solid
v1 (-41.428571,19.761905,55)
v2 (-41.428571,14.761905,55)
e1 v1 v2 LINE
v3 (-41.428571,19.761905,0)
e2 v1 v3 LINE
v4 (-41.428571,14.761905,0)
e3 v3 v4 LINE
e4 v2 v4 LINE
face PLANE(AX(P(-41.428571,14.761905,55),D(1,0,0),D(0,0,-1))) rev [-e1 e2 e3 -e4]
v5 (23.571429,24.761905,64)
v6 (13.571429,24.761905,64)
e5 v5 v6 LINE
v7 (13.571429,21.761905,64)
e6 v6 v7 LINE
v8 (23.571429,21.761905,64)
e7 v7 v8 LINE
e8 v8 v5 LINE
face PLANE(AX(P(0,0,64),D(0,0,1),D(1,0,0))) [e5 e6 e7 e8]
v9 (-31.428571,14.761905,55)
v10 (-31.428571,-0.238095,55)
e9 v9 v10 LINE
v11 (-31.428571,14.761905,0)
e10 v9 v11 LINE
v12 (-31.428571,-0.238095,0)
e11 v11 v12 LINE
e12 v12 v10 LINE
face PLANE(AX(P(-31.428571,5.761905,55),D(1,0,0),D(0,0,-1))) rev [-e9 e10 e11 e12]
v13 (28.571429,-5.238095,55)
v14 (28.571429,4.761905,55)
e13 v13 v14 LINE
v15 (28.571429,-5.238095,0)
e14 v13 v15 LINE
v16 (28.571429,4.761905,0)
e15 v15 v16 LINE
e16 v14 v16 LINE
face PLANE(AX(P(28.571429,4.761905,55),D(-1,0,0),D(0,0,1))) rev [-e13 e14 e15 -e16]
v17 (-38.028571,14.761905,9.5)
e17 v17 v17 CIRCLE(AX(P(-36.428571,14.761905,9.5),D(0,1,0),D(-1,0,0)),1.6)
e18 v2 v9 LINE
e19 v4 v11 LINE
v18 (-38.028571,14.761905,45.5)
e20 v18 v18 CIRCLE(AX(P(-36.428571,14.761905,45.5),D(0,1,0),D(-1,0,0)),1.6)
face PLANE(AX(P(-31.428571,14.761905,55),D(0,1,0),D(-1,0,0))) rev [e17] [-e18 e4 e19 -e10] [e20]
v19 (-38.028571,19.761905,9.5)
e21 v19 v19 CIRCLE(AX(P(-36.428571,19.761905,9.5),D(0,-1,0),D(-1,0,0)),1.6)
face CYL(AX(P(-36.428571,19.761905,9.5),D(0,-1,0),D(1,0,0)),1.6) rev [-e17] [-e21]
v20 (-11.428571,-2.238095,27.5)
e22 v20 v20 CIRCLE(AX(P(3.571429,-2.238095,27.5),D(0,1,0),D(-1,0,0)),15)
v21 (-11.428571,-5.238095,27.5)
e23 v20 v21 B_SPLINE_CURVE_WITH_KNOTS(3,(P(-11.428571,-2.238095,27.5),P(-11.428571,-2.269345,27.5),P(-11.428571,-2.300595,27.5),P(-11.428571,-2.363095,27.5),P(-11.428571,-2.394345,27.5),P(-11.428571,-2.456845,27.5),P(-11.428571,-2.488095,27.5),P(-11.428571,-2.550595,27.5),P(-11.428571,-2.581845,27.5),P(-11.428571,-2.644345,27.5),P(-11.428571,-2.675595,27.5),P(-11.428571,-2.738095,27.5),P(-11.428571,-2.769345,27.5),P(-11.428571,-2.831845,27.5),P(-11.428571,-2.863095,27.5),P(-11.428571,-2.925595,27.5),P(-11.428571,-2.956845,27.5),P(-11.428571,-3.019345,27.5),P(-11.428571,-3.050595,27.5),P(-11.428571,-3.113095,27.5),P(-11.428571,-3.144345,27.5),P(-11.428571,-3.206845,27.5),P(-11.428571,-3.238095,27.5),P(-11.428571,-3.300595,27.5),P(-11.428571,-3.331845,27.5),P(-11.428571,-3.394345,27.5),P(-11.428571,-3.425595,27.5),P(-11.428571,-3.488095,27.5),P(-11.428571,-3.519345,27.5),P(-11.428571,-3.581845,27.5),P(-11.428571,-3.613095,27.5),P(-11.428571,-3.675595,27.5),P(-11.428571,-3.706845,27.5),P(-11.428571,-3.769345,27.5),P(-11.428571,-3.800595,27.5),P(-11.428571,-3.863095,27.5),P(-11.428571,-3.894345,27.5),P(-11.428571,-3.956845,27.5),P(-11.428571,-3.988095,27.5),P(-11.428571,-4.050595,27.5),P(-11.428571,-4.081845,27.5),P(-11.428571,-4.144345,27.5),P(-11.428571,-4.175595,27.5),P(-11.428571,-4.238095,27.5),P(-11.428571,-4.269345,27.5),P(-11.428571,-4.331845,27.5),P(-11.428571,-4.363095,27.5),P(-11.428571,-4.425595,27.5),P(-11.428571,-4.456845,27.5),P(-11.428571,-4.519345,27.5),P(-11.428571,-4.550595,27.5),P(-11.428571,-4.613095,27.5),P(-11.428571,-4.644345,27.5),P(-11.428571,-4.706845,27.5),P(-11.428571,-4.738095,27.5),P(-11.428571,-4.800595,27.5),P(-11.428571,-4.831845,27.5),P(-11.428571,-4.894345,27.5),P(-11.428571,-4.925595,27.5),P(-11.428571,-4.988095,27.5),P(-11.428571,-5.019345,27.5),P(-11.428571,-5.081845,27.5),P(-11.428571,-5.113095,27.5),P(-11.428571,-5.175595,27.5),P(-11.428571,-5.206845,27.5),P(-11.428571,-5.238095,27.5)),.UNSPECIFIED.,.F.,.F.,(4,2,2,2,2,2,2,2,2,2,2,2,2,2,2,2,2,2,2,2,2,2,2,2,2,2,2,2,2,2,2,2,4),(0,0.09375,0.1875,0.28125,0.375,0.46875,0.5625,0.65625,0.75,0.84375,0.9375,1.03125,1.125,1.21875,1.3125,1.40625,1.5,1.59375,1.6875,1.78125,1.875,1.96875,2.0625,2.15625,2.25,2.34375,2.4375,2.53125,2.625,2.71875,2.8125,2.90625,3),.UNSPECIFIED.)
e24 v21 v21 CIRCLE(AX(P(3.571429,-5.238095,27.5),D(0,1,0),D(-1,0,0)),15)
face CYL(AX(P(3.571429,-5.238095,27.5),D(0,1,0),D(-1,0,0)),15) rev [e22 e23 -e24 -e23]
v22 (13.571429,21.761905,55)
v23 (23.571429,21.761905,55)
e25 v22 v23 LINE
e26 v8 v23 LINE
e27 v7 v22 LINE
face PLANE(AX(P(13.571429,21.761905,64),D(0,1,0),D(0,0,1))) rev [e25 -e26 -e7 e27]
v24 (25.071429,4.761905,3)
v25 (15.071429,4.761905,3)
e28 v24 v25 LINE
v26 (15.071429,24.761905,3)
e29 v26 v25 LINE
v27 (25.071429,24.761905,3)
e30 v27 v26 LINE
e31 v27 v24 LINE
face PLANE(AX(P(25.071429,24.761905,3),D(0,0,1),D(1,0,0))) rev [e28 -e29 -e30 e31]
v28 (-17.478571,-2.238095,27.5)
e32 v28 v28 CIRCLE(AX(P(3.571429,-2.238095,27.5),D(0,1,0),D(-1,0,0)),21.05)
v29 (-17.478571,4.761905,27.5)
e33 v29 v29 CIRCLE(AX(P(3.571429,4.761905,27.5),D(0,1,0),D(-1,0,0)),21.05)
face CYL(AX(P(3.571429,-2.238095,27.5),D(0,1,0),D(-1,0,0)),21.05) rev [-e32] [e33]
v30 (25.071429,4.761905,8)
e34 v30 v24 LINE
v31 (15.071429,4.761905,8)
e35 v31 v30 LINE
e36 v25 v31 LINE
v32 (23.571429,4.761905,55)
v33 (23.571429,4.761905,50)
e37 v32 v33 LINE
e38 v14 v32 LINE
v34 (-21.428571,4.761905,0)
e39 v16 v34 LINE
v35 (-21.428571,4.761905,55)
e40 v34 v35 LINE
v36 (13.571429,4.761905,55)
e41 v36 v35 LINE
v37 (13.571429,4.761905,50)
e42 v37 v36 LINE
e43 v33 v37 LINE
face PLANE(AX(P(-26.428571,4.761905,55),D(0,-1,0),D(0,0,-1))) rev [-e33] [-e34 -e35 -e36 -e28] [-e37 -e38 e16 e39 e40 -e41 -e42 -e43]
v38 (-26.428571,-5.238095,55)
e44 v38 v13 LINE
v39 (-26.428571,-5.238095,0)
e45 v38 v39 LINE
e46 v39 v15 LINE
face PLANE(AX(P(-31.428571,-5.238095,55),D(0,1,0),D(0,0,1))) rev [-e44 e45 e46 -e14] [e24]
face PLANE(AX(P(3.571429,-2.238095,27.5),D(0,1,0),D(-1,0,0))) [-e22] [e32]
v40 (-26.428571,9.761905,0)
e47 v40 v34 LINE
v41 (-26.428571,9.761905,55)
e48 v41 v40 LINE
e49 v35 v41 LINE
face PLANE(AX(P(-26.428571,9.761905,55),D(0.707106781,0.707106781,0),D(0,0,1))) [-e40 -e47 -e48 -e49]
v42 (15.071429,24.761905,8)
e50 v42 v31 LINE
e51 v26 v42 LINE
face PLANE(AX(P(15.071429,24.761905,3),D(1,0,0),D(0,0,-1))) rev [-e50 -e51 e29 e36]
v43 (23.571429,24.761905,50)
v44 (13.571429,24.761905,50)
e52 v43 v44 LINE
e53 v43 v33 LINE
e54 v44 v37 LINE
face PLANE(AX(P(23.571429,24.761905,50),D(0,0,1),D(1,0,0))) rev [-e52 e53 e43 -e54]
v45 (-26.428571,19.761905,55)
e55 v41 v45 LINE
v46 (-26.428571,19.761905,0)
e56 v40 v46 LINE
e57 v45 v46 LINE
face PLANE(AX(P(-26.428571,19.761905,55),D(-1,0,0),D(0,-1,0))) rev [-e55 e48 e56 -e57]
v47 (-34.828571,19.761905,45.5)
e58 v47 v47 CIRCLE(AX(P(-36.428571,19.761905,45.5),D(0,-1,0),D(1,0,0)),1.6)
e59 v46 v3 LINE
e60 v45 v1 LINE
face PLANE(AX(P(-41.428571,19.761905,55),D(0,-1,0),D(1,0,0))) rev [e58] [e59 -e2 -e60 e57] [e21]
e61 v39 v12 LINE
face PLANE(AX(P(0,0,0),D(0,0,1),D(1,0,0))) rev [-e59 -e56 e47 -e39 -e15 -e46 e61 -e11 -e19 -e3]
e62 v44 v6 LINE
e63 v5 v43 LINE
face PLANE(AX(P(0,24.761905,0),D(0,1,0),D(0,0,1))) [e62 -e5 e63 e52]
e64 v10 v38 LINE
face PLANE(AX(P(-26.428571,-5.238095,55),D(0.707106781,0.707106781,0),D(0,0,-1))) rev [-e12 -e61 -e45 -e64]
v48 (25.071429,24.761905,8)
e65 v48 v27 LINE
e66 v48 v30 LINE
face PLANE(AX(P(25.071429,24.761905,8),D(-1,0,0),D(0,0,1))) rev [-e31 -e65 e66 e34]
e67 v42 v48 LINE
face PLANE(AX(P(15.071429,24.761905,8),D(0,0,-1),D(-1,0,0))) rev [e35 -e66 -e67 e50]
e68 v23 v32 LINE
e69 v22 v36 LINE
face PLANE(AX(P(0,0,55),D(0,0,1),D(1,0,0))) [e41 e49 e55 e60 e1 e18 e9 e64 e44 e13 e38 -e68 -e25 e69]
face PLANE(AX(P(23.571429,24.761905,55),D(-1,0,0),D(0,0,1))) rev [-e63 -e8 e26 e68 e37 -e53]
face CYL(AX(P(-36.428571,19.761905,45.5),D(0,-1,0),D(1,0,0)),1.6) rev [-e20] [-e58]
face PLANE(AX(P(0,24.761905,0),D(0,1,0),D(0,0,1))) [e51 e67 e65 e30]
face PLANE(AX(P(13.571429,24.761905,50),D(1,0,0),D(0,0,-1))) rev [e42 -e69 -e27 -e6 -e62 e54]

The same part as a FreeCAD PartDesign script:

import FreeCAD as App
import Part
import Sketcher
from FreeCAD import Vector
Q = App.Units.Quantity


def edges_at(feature, points):
    """Names of the edges that pass closest to the given points."""
    edges = feature.Shape.Edges
    near = lambda p: min(range(len(edges)), key=lambda i: edges[i].distToShape(Part.Vertex(*p))[0])
    return sorted({f"Edge{near(p) + 1}" for p in points})

doc = App.newDocument("Part")
body = doc.addObject("PartDesign::Body", "Body")

# Sketch on XY plane
sketch1 = body.newObject("Sketcher::SketchObject", "Sketch")
sketch1.AttachmentSupport = (doc.getObject("XY_Plane"), [""])
sketch1.MapMode = "FlatFace"
sketch1.addGeometry(Part.LineSegment(Vector(-31.428571, 14.761905, 0), Vector(-31.428571, -5.238095, 0)), False)
sketch1.addGeometry(Part.LineSegment(Vector(-31.428571, -5.238095, 0), Vector(28.571429, -5.238095, 0)), False)
sketch1.addGeometry(Part.LineSegment(Vector(28.571429, -5.238095, 0), Vector(28.571429, 4.761905, 0)), False)
sketch1.addGeometry(Part.LineSegment(Vector(28.571429, 4.761905, 0), Vector(-26.428571, 4.761905, 0)), False)
sketch1.addGeometry(Part.LineSegment(Vector(-26.428571, 4.761905, 0), Vector(-26.428571, 19.761905, 0)), False)
sketch1.addGeometry(Part.LineSegment(Vector(-26.428571, 19.761905, 0), Vector(-41.428571, 19.761905, 0)), False)
sketch1.addGeometry(Part.LineSegment(Vector(-41.428571, 19.761905, 0), Vector(-41.428571, 14.761905, 0)), False)
sketch1.addGeometry(Part.LineSegment(Vector(-41.428571, 14.761905, 0), Vector(-31.428571, 14.761905, 0)), False)
sketch1.addConstraint(Sketcher.Constraint("Coincident", 0, 2, 1, 1))
sketch1.addConstraint(Sketcher.Constraint("Coincident", 1, 2, 2, 1))
sketch1.addConstraint(Sketcher.Constraint("Coincident", 2, 2, 3, 1))
sketch1.addConstraint(Sketcher.Constraint("Coincident", 3, 2, 4, 1))
sketch1.addConstraint(Sketcher.Constraint("Coincident", 4, 2, 5, 1))
sketch1.addConstraint(Sketcher.Constraint("Coincident", 5, 2, 6, 1))
sketch1.addConstraint(Sketcher.Constraint("Coincident", 6, 2, 7, 1))
sketch1.addConstraint(Sketcher.Constraint("Coincident", 7, 2, 0, 1))
sketch1.addConstraint(Sketcher.Constraint("Vertical", 0))
sketch1.addConstraint(Sketcher.Constraint("Horizontal", 1))
sketch1.addConstraint(Sketcher.Constraint("Vertical", 2))
sketch1.addConstraint(Sketcher.Constraint("Horizontal", 3))
sketch1.addConstraint(Sketcher.Constraint("Vertical", 4))
sketch1.addConstraint(Sketcher.Constraint("Horizontal", 5))
sketch1.addConstraint(Sketcher.Constraint("Vertical", 6))
sketch1.addConstraint(Sketcher.Constraint("Horizontal", 7))
sketch1.addConstraint(Sketcher.Constraint("Equal", 7, 2))
sketch1.addConstraint(Sketcher.Constraint("Equal", 5, 4))
sketch1.addConstraint(Sketcher.Constraint("DistanceX", 1, 1, 1, 2, Q("60 mm")))
sketch1.addConstraint(Sketcher.Constraint("DistanceX", 3, 2, 3, 1, Q("55 mm")))
sketch1.addConstraint(Sketcher.Constraint("DistanceX", 5, 2, 5, 1, Q("15 mm")))
sketch1.addConstraint(Sketcher.Constraint("DistanceY", 0, 2, 0, 1, Q("20 mm")))
sketch1.addConstraint(Sketcher.Constraint("DistanceX", 0, 2, -1, 1, Q("31.428571 mm")))
sketch1.addConstraint(Sketcher.Constraint("DistanceY", 0, 2, -1, 1, Q("5.238095 mm")))
pad1 = body.newObject("PartDesign::Pad", "Pad")
pad1.Profile = sketch1
pad1.Length = 55

# Sketch on XZ plane
sketch2 = body.newObject("Sketcher::SketchObject", "Sketch001")
sketch2.AttachmentSupport = (doc.getObject("XZ_Plane"), [""])
sketch2.MapMode = "FlatFace"
sketch2.AttachmentOffset = App.Placement(Vector(0, 0, -4.761905), App.Rotation())
sketch2.addGeometry(Part.Circle(Vector(3.571429, 27.5, 0), Vector(0, 0, 1), 21.05), False)
sketch2.addConstraint(Sketcher.Constraint("Diameter", 0, Q("42.1 mm")))
sketch2.addConstraint(Sketcher.Constraint("DistanceY", -1, 1, 0, 3, Q("27.5 mm")))
sketch2.addConstraint(Sketcher.Constraint("DistanceX", -1, 1, 0, 3, Q("3.571429 mm")))
pocket1 = body.newObject("PartDesign::Pocket", "Pocket")
pocket1.Profile = sketch2
pocket1.Length = 7
pocket1.Reversed = True

# Sketch on XZ plane
sketch3 = body.newObject("Sketcher::SketchObject", "Sketch002")
sketch3.AttachmentSupport = (doc.getObject("XZ_Plane"), [""])
sketch3.MapMode = "FlatFace"
sketch3.AttachmentOffset = App.Placement(Vector(0, 0, 2.238095), App.Rotation())
sketch3.addGeometry(Part.Circle(Vector(3.571429, 27.5, 0), Vector(0, 0, 1), 15), False)
sketch3.addConstraint(Sketcher.Constraint("Diameter", 0, Q("30 mm")))
sketch3.addConstraint(Sketcher.Constraint("DistanceY", -1, 1, 0, 3, Q("27.5 mm")))
sketch3.addConstraint(Sketcher.Constraint("DistanceX", -1, 1, 0, 3, Q("3.571429 mm")))
pocket2 = body.newObject("PartDesign::Pocket", "Pocket001")
pocket2.Profile = sketch3
pocket2.Type = "ThroughAll"
pocket2.Midplane = True

# Sketch on XZ plane
sketch4 = body.newObject("Sketcher::SketchObject", "Sketch003")
sketch4.AttachmentSupport = (doc.getObject("XZ_Plane"), [""])
sketch4.MapMode = "FlatFace"
sketch4.AttachmentOffset = App.Placement(Vector(0, 0, -14.761905), App.Rotation())
sketch4.addGeometry(Part.Circle(Vector(-36.428571, 45.5, 0), Vector(0, 0, 1), 1.6), False)
sketch4.addGeometry(Part.Circle(Vector(-36.428571, 9.5, 0), Vector(0, 0, 1), 1.6), False)
sketch4.addConstraint(Sketcher.Constraint("Equal", 0, 1))
sketch4.addConstraint(Sketcher.Constraint("Vertical", 0, 3, 1, 3))
sketch4.addConstraint(Sketcher.Constraint("Diameter", 0, Q("3.2 mm")))
sketch4.addConstraint(Sketcher.Constraint("DistanceY", 1, 3, 0, 3, Q("36 mm")))
sketch4.addConstraint(Sketcher.Constraint("DistanceY", -1, 1, 0, 3, Q("45.5 mm")))
sketch4.addConstraint(Sketcher.Constraint("DistanceX", 0, 3, -1, 1, Q("36.428571 mm")))
pocket3 = body.newObject("PartDesign::Pocket", "Pocket002")
pocket3.Profile = sketch4
pocket3.Type = "ThroughAll"
pocket3.Midplane = True
doc.recompute()

chamfer = body.newObject("PartDesign::Chamfer", "Chamfer")
chamfer.Base = (pocket3, edges_at(pocket3, [(-31.429, -5.238, 27.5), (-26.429, 4.762, 27.5)]))
chamfer.Size = 5

# Sketch on XZ plane
sketch5 = body.newObject("Sketcher::SketchObject", "Sketch004")
sketch5.AttachmentSupport = (doc.getObject("XZ_Plane"), [""])
sketch5.MapMode = "FlatFace"
sketch5.AttachmentOffset = App.Placement(Vector(0, 0, -4.761905), App.Rotation())
sketch5.addGeometry(Part.LineSegment(Vector(13.571429, 50, 0), Vector(13.571429, 55, 0)), False)
sketch5.addGeometry(Part.LineSegment(Vector(13.571429, 55, 0), Vector(23.571429, 55, 0)), False)
sketch5.addGeometry(Part.LineSegment(Vector(23.571429, 55, 0), Vector(23.571429, 50, 0)), False)
sketch5.addGeometry(Part.LineSegment(Vector(23.571429, 50, 0), Vector(13.571429, 50, 0)), False)
sketch5.addConstraint(Sketcher.Constraint("Coincident", 0, 2, 1, 1))
sketch5.addConstraint(Sketcher.Constraint("Coincident", 1, 2, 2, 1))
sketch5.addConstraint(Sketcher.Constraint("Coincident", 2, 2, 3, 1))
sketch5.addConstraint(Sketcher.Constraint("Coincident", 3, 2, 0, 1))
sketch5.addConstraint(Sketcher.Constraint("Vertical", 0))
sketch5.addConstraint(Sketcher.Constraint("Horizontal", 1))
sketch5.addConstraint(Sketcher.Constraint("Vertical", 2))
sketch5.addConstraint(Sketcher.Constraint("Horizontal", 3))
sketch5.addConstraint(Sketcher.Constraint("DistanceX", 1, 1, 1, 2, Q("10 mm")))
sketch5.addConstraint(Sketcher.Constraint("DistanceY", 0, 1, 0, 2, Q("5 mm")))
sketch5.addConstraint(Sketcher.Constraint("DistanceY", -1, 1, 0, 2, Q("55 mm")))
sketch5.addConstraint(Sketcher.Constraint("DistanceX", -1, 1, 0, 2, Q("13.571429 mm")))
pad2 = body.newObject("PartDesign::Pad", "Pad001")
pad2.Profile = sketch5
pad2.Length = 20
pad2.Reversed = True

# Sketch on XY plane
sketch6 = body.newObject("Sketcher::SketchObject", "Sketch005")
sketch6.AttachmentSupport = (doc.getObject("XY_Plane"), [""])
sketch6.MapMode = "FlatFace"
sketch6.AttachmentOffset = App.Placement(Vector(0, 0, 55), App.Rotation())
sketch6.addGeometry(Part.LineSegment(Vector(13.571429, 24.761905, 0), Vector(13.571429, 21.761905, 0)), False)
sketch6.addGeometry(Part.LineSegment(Vector(13.571429, 21.761905, 0), Vector(23.571429, 21.761905, 0)), False)
sketch6.addGeometry(Part.LineSegment(Vector(23.571429, 21.761905, 0), Vector(23.571429, 24.761905, 0)), False)
sketch6.addGeometry(Part.LineSegment(Vector(23.571429, 24.761905, 0), Vector(13.571429, 24.761905, 0)), False)
sketch6.addConstraint(Sketcher.Constraint("Coincident", 0, 2, 1, 1))
sketch6.addConstraint(Sketcher.Constraint("Coincident", 1, 2, 2, 1))
sketch6.addConstraint(Sketcher.Constraint("Coincident", 2, 2, 3, 1))
sketch6.addConstraint(Sketcher.Constraint("Coincident", 3, 2, 0, 1))
sketch6.addConstraint(Sketcher.Constraint("Vertical", 0))
sketch6.addConstraint(Sketcher.Constraint("Horizontal", 1))
sketch6.addConstraint(Sketcher.Constraint("Vertical", 2))
sketch6.addConstraint(Sketcher.Constraint("Horizontal", 3))
sketch6.addConstraint(Sketcher.Constraint("DistanceX", 1, 1, 1, 2, Q("10 mm")))
sketch6.addConstraint(Sketcher.Constraint("DistanceY", 0, 2, 0, 1, Q("3 mm")))
sketch6.addConstraint(Sketcher.Constraint("DistanceX", -1, 1, 0, 2, Q("13.571429 mm")))
sketch6.addConstraint(Sketcher.Constraint("DistanceY", -1, 1, 0, 2, Q("21.761905 mm")))
pad3 = body.newObject("PartDesign::Pad", "Pad002")
pad3.Profile = sketch6
pad3.Length = 9

# Sketch on XZ plane
sketch7 = body.newObject("Sketcher::SketchObject", "Sketch006")
sketch7.AttachmentSupport = (doc.getObject("XZ_Plane"), [""])
sketch7.MapMode = "FlatFace"
sketch7.AttachmentOffset = App.Placement(Vector(0, 0, -4.761905), App.Rotation())
sketch7.addGeometry(Part.LineSegment(Vector(15.071429, 3, 0), Vector(15.071429, 8, 0)), False)
sketch7.addGeometry(Part.LineSegment(Vector(15.071429, 8, 0), Vector(25.071429, 8, 0)), False)
sketch7.addGeometry(Part.LineSegment(Vector(25.071429, 8, 0), Vector(25.071429, 3, 0)), False)
sketch7.addGeometry(Part.LineSegment(Vector(25.071429, 3, 0), Vector(15.071429, 3, 0)), False)
sketch7.addConstraint(Sketcher.Constraint("Coincident", 0, 2, 1, 1))
sketch7.addConstraint(Sketcher.Constraint("Coincident", 1, 2, 2, 1))
sketch7.addConstraint(Sketcher.Constraint("Coincident", 2, 2, 3, 1))
sketch7.addConstraint(Sketcher.Constraint("Coincident", 3, 2, 0, 1))
sketch7.addConstraint(Sketcher.Constraint("Vertical", 0))
sketch7.addConstraint(Sketcher.Constraint("Horizontal", 1))
sketch7.addConstraint(Sketcher.Constraint("Vertical", 2))
sketch7.addConstraint(Sketcher.Constraint("Horizontal", 3))
sketch7.addConstraint(Sketcher.Constraint("DistanceX", 1, 1, 1, 2, Q("10 mm")))
sketch7.addConstraint(Sketcher.Constraint("DistanceY", 0, 1, 0, 2, Q("5 mm")))
sketch7.addConstraint(Sketcher.Constraint("DistanceY", -1, 1, 0, 2, Q("8 mm")))
sketch7.addConstraint(Sketcher.Constraint("DistanceX", -1, 1, 0, 2, Q("15.071429 mm")))
pad4 = body.newObject("PartDesign::Pad", "Pad003")
pad4.Profile = sketch7
pad4.Length = 20
pad4.Reversed = True

doc.recompute()
